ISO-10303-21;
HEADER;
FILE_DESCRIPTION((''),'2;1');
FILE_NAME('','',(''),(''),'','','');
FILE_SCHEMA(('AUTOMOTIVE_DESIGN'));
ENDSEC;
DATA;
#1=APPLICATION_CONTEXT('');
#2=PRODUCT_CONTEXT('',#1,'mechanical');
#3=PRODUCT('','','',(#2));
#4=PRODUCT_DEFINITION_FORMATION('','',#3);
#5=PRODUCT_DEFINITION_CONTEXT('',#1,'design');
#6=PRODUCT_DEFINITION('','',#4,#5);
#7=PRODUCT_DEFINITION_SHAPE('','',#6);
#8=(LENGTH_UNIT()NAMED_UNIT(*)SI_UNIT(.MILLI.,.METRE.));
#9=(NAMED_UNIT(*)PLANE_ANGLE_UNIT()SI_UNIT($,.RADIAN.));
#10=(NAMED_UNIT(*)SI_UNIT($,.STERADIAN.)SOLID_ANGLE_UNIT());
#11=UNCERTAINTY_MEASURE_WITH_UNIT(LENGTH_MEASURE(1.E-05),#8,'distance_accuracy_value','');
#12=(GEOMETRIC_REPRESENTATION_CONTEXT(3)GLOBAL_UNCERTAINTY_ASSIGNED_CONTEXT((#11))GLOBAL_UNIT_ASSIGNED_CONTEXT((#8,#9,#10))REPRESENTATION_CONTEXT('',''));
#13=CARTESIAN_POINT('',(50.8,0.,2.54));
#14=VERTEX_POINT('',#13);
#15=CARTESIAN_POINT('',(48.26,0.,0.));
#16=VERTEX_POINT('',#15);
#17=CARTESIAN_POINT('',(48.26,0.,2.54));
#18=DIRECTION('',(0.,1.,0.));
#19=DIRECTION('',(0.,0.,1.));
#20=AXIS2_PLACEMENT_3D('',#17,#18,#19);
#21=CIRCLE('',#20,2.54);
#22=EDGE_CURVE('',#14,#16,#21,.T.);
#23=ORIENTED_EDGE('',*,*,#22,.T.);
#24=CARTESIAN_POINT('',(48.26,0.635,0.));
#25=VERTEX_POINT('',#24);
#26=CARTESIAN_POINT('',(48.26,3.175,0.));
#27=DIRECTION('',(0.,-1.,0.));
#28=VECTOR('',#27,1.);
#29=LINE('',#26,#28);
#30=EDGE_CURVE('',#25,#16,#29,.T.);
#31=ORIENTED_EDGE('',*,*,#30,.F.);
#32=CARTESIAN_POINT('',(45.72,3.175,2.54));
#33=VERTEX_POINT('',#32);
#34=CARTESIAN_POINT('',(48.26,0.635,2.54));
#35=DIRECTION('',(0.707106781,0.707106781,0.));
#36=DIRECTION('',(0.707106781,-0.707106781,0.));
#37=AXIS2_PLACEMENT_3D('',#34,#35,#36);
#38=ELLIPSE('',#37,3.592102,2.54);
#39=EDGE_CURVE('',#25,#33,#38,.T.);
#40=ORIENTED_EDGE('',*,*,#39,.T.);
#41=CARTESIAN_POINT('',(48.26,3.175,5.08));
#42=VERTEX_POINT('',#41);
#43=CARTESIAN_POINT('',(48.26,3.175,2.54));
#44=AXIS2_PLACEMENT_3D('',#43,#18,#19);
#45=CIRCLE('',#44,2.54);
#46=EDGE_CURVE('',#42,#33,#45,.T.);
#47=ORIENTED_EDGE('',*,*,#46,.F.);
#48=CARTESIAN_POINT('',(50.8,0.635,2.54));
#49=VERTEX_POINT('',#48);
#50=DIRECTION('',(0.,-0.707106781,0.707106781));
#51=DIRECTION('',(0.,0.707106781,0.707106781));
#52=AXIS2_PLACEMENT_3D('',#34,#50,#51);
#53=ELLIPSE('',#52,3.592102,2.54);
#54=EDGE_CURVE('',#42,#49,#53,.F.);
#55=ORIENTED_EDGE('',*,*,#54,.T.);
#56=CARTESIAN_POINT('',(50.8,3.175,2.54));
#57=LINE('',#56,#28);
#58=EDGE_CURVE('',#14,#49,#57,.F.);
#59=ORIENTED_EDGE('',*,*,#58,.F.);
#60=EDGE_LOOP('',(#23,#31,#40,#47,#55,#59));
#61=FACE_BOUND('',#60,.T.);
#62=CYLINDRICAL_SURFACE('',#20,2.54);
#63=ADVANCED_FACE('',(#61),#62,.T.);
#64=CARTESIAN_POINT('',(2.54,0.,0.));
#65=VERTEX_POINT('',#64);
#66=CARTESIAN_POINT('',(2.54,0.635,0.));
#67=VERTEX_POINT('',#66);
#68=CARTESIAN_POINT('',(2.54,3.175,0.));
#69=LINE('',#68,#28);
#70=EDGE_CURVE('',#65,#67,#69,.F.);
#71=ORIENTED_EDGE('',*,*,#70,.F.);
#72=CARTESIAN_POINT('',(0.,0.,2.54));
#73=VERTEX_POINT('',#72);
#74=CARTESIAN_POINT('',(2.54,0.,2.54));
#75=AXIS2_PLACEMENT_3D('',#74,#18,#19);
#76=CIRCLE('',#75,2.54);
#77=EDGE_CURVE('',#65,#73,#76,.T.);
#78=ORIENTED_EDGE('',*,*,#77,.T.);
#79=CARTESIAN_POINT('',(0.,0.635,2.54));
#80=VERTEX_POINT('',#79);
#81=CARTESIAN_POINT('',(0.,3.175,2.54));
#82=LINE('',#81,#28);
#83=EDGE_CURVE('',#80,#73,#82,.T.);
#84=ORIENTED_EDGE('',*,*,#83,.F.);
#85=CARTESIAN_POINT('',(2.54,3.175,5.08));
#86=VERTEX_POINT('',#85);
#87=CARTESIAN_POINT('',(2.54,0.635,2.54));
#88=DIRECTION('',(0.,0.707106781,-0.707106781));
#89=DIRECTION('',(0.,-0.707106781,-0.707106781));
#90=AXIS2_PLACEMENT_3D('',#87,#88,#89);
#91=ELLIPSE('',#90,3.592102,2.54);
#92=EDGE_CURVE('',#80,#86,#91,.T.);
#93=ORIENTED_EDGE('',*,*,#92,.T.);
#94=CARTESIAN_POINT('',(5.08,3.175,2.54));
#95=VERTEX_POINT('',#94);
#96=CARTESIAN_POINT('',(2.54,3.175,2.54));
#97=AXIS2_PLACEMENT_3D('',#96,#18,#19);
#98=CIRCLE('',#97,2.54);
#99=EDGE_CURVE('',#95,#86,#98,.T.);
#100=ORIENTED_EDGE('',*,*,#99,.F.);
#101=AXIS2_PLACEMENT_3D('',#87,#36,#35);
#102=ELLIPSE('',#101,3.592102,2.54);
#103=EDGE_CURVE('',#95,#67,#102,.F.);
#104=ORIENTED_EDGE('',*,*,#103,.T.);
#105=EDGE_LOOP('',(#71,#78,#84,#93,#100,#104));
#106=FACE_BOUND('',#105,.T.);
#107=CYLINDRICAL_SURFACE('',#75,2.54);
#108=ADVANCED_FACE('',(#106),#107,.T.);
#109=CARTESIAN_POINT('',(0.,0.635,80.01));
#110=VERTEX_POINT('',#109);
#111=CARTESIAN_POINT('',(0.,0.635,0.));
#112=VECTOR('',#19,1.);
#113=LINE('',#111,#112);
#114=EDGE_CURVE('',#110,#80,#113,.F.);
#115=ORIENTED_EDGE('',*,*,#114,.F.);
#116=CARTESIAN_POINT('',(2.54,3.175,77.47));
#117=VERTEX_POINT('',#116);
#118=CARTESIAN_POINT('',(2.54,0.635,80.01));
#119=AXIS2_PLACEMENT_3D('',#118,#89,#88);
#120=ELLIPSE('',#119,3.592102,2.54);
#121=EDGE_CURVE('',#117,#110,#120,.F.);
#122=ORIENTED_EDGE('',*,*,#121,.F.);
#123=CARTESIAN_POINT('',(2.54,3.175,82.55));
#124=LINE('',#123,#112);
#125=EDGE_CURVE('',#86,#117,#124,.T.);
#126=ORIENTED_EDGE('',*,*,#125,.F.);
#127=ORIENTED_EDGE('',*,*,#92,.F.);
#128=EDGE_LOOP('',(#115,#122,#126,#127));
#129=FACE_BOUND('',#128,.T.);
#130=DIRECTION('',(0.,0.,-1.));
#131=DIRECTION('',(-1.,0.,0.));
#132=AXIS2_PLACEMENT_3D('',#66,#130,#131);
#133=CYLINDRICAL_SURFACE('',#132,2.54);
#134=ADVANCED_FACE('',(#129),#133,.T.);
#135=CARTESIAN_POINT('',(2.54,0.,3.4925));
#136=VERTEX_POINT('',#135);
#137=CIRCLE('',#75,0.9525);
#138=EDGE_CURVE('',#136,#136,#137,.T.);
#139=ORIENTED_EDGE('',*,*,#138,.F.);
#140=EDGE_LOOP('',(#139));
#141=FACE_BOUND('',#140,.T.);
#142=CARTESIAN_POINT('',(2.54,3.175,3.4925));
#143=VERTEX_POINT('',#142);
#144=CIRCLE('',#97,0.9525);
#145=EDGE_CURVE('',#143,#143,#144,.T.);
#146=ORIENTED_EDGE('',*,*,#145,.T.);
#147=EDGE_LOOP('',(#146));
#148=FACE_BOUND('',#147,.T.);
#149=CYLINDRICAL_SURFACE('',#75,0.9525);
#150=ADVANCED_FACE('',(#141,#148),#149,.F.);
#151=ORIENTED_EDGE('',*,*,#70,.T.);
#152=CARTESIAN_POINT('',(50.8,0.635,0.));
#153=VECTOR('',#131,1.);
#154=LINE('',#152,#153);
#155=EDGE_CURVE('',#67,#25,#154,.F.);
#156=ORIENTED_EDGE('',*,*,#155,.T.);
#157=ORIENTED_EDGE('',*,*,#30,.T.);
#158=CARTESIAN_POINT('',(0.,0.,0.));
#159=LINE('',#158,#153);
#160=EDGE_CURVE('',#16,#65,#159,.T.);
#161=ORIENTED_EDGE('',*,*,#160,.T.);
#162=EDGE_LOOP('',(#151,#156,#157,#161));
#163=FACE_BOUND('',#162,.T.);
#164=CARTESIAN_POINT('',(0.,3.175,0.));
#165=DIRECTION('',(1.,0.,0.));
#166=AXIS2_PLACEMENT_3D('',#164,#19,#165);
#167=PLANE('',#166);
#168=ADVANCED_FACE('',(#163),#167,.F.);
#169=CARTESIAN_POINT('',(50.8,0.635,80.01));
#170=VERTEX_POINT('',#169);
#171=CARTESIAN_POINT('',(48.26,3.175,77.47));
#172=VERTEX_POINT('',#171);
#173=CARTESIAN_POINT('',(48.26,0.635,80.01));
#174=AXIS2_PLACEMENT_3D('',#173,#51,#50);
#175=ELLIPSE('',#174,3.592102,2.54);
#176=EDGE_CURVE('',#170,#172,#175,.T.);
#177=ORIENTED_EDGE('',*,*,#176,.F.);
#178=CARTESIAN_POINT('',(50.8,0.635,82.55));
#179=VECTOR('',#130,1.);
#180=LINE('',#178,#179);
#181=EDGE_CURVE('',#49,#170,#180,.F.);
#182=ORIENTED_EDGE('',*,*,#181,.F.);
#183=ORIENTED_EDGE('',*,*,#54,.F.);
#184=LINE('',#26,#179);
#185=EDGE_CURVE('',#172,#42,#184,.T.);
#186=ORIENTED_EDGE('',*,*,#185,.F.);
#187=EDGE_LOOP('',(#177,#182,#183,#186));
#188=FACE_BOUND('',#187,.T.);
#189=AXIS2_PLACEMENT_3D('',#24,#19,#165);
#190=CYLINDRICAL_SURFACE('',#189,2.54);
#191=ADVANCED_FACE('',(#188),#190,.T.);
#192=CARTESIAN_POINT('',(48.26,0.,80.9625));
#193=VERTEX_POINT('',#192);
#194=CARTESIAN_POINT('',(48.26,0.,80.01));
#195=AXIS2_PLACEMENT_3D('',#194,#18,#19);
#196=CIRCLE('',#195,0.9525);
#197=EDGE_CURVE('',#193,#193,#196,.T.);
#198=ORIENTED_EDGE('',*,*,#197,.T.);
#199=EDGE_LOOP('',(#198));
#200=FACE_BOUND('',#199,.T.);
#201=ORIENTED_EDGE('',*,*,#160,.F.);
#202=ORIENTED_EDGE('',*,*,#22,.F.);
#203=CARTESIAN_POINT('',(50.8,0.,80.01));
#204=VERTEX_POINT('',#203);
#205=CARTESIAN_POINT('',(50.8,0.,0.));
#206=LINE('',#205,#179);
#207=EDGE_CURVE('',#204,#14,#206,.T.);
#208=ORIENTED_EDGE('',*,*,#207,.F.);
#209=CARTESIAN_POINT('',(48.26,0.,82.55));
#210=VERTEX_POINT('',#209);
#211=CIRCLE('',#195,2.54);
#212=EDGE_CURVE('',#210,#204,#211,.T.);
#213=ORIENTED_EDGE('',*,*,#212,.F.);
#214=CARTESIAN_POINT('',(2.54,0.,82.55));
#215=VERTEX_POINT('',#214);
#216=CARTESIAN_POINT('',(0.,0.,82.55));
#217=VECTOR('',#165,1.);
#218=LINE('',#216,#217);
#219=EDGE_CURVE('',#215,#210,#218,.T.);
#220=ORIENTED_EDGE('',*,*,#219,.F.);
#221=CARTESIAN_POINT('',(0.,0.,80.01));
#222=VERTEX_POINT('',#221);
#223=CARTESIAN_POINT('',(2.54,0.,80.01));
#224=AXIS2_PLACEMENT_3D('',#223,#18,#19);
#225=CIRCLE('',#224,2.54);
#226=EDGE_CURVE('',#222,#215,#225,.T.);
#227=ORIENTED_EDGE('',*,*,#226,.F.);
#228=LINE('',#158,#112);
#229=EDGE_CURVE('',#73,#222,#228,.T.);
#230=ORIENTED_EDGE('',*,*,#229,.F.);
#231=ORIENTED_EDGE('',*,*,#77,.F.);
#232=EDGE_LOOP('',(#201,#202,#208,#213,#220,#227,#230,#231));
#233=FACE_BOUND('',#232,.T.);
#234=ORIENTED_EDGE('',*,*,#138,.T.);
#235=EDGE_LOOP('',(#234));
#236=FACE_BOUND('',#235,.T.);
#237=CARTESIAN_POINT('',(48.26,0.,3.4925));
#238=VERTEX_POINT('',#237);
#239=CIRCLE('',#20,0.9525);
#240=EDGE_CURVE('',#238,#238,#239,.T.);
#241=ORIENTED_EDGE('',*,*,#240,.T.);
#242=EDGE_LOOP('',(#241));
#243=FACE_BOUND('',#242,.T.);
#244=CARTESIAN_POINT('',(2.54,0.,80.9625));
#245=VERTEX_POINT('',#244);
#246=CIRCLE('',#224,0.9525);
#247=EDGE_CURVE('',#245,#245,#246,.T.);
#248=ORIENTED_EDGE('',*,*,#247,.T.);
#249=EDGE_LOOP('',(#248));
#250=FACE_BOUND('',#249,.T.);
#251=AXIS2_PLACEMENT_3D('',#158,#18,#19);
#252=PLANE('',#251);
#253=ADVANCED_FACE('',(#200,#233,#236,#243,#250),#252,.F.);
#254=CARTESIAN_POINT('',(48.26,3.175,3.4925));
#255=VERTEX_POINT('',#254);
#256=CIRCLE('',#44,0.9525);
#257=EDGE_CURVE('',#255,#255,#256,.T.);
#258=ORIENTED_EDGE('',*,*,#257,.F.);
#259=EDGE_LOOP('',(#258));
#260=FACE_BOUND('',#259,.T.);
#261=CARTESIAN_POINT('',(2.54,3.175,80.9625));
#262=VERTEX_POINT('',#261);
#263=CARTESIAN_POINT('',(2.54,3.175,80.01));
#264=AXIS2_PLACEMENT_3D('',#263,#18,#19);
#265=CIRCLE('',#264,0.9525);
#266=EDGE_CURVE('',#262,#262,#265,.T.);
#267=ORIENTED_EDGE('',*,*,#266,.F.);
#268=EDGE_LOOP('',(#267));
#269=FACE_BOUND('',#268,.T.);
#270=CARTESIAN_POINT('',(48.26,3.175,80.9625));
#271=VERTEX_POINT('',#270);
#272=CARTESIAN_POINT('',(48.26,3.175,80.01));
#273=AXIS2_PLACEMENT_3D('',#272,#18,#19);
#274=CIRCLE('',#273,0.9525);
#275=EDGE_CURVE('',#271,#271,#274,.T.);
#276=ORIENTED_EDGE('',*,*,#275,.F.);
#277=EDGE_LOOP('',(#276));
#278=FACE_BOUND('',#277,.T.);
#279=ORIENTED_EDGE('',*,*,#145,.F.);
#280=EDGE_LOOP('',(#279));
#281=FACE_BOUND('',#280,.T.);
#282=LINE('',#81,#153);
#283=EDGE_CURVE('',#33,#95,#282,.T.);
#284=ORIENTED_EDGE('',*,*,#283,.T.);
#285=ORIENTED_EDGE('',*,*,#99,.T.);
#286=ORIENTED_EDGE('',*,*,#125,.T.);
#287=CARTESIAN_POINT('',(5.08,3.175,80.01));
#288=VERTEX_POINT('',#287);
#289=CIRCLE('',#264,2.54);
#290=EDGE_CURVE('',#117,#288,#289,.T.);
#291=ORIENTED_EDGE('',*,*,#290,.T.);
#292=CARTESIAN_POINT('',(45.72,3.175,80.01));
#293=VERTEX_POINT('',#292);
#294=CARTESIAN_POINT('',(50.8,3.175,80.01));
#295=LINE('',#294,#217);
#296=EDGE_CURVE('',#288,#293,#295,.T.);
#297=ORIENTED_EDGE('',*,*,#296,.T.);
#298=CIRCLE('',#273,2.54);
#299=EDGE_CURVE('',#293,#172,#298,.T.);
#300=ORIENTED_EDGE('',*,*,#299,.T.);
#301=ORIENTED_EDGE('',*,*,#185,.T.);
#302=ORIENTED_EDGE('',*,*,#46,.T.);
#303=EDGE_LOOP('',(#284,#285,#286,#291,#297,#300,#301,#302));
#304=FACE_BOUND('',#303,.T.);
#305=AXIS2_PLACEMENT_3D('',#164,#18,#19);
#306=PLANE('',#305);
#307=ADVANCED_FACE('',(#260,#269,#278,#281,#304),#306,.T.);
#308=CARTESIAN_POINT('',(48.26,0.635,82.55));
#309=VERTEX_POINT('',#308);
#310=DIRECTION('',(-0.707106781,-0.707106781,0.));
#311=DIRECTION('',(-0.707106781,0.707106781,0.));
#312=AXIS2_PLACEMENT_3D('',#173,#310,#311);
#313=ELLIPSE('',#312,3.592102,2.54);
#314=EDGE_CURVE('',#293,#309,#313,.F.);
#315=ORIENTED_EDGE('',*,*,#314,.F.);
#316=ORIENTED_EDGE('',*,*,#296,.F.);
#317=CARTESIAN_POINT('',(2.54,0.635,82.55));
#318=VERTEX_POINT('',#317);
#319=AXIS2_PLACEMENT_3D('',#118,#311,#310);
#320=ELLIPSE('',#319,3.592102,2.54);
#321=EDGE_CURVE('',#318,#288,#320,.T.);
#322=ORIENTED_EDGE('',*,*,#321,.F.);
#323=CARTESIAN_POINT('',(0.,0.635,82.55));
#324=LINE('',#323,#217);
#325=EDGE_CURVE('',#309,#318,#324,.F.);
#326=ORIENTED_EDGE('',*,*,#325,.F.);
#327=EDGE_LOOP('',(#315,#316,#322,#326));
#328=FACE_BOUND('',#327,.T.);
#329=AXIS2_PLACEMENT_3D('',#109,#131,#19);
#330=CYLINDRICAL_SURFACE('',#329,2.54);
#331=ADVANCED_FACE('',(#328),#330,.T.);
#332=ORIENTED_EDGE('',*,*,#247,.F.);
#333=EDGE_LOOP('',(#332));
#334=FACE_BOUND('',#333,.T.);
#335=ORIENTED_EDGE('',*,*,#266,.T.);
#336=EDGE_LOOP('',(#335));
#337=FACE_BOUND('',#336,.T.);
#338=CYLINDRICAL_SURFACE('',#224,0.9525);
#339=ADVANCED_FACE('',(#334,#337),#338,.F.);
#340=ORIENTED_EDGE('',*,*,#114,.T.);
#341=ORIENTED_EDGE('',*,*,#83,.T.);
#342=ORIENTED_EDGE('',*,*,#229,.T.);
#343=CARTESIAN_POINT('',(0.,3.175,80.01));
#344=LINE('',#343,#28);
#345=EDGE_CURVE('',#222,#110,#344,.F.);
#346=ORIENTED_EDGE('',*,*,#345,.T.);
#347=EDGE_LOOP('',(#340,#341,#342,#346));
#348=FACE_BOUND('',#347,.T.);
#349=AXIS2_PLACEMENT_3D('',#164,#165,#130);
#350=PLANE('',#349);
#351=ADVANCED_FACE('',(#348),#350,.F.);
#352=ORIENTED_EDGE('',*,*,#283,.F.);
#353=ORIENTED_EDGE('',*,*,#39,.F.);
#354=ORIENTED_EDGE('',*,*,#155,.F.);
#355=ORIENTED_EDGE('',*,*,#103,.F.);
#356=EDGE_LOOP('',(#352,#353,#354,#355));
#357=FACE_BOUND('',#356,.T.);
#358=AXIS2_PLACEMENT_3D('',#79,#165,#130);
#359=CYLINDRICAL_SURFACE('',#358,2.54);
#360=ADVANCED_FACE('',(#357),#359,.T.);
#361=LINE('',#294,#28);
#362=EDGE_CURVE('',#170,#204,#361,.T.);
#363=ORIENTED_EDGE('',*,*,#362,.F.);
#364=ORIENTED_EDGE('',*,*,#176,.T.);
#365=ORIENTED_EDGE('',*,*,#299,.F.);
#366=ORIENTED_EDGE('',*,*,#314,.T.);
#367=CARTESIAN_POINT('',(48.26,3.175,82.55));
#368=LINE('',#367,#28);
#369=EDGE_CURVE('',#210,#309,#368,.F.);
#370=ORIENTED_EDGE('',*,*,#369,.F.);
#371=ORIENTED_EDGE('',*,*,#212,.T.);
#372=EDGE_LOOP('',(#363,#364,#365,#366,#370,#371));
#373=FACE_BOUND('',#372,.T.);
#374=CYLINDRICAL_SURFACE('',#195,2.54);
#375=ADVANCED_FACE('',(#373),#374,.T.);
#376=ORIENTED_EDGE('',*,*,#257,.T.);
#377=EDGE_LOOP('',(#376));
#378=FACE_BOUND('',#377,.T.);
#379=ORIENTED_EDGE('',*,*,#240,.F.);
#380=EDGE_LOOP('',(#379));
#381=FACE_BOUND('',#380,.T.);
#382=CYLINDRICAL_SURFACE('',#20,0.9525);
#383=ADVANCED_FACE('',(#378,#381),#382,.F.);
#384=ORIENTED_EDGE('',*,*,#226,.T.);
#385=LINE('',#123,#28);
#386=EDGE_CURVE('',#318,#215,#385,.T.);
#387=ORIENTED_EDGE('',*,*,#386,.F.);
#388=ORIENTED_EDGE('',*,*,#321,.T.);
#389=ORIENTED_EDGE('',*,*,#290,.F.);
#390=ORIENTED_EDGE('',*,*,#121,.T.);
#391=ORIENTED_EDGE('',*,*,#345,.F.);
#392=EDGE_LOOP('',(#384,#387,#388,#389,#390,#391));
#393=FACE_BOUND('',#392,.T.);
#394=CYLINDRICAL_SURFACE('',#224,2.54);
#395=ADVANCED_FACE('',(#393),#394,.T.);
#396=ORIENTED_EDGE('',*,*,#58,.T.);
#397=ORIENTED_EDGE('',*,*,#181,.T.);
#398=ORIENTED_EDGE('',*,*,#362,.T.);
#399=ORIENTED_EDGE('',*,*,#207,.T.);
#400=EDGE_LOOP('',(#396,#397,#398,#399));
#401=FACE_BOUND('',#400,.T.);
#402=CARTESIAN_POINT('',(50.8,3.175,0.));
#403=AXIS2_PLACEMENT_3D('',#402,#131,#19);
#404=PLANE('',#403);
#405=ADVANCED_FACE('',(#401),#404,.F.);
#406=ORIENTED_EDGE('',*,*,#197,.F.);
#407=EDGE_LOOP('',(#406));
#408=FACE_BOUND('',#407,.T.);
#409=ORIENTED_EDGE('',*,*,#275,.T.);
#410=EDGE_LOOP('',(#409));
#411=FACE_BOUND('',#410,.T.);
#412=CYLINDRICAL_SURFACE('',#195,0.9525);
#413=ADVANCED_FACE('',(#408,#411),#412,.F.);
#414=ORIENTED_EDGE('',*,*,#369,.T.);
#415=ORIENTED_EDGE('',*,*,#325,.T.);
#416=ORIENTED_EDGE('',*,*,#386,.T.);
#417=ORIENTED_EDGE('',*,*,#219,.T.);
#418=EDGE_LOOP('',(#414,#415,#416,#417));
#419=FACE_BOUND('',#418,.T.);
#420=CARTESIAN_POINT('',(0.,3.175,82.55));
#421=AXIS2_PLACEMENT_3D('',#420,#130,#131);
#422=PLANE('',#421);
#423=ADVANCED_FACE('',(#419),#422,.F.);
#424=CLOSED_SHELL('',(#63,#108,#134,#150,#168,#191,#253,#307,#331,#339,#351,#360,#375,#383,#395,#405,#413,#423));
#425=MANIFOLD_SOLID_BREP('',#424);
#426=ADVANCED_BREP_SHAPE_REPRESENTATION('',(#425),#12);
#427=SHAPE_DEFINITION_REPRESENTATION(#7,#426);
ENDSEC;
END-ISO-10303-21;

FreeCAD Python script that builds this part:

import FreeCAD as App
import Part
import Sketcher

V = App.Vector
Q = App.Units.Quantity


def edges_at(feature, points):
    """Names of the edges that pass closest to the given points."""
    edges = feature.Shape.Edges
    near = lambda p: min(range(len(edges)), key=lambda i: edges[i].distToShape(Part.Vertex(*p))[0])
    return sorted({f"Edge{near(p) + 1}" for p in points})


def add_polygon(sketch, points):
    """Adds a closed chain of lines whose ends are joined by coincident constraints."""
    first, n = sketch.GeometryCount, len(points)
    for a, b in zip(points, points[1:] + points[:1]):
        sketch.addGeometry(Part.LineSegment(App.Vector(*a, 0), App.Vector(*b, 0)), False)
    for i in range(n):
        sketch.addConstraint(Sketcher.Constraint("Coincident", first + i, 2, first + (i + 1) % n, 1))

doc = App.newDocument("Part")
params = doc.addObject("Spreadsheet::Sheet", "Params")
for row, (alias, value) in enumerate([
    ("sketch1_width", "2 in"),
    ("sketch1_height", "3.25 in"),
    ("pad1_length", "0.125 in"),
    ("fillet_radius", "0.1 in"),
    ("sketch2_diameter", "0.2 in"),
    ("sketch3_diameter", "0.2 in"),
    ("pad2_length", "0.125 in"),
    ("sketch4_diameter", "0.075 in"),
], start=1):
    params.set(f"A{row}", alias)
    params.set(f"B{row}", "=" + value)
    params.setAlias(f"B{row}", alias)

body = doc.addObject("PartDesign::Body", "Body")

sketch1 = body.newObject("Sketcher::SketchObject", "Sketch")
sketch1.AttachmentSupport = (doc.getObject("XZ_Plane"), [""])
sketch1.MapMode = "FlatFace"
add_polygon(sketch1, [(0, 0), (0, 83), (51, 83), (51, 0)])
sketch1.addConstraint([
    Sketcher.Constraint("Vertical", 0),
    Sketcher.Constraint("Horizontal", 1),
    Sketcher.Constraint("Vertical", 2),
    Sketcher.Constraint("Horizontal", 3),
    Sketcher.Constraint("Coincident", 3, 2, -1, 1),
    Sketcher.Constraint("DistanceX", 1, 1, 1, 2, Q("2 in")),
    Sketcher.Constraint("DistanceY", 0, 1, 0, 2, Q("3.25 in")),
])
sketch1.setExpression("Constraints[9]", "Params.sketch1_width")
sketch1.setExpression("Constraints[10]", "Params.sketch1_height")
pad1 = body.newObject("PartDesign::Pad", "Pad")
pad1.Profile = sketch1
pad1.setExpression("Length", "Params.pad1_length")
pad1.Reversed = True
doc.recompute()

fillet = body.newObject("PartDesign::Fillet", "Fillet")
fillet.Base = (pad1, edges_at(pad1, [
    (50.8, 3.175, 41.275),
    (25.4, 3.175, 0),
    (0, 3.175, 41.275),
    (25.4, 3.175, 82.55),
    (0, 1.587, 0),
    (50.8, 1.587, 0),
    (50.8, 1.587, 82.55),
    (0, 1.587, 82.55),
]))
fillet.setExpression("Radius", "Params.fillet_radius")

sketch2 = body.newObject("Sketcher::SketchObject", "Sketch001")
sketch2.AttachmentSupport = (doc.getObject("XZ_Plane"), [""])
sketch2.MapMode = "FlatFace"
sketch2.AttachmentOffset = App.Placement(V(0, 0, -0.125 * 25.4), App.Rotation())
sketch2.addGeometry([
    Part.Circle(V(48.3, 80, 0), V(0, 0, 1), 2.5),
    Part.Circle(V(2.5, 80, 0), V(0, 0, 1), 2.5),
    Part.Circle(V(2.5, 2.5, 0), V(0, 0, 1), 2.5),
    Part.Circle(V(48.3, 2.5, 0), V(0, 0, 1), 2.5),
], False)
sketch2.addConstraint([
    Sketcher.Constraint("Equal", 0, 1),
    Sketcher.Constraint("Equal", 1, 2),
    Sketcher.Constraint("Equal", 2, 3),
    Sketcher.Constraint("Horizontal", 0, 3, 1, 3),
    Sketcher.Constraint("Horizontal", 2, 3, 3, 3),
    Sketcher.Constraint("Vertical", 1, 3, 2, 3),
    Sketcher.Constraint("Vertical", 0, 3, 3, 3),
    Sketcher.Constraint("Diameter", 0, Q("0.2 in")),
    Sketcher.Constraint("DistanceX", -1, 1, 0, 3, Q("1.9 in")),
    Sketcher.Constraint("DistanceX", -1, 1, 1, 3, Q("0.1 in")),
    Sketcher.Constraint("DistanceY", -1, 1, 2, 3, Q("0.1 in")),
    Sketcher.Constraint("DistanceY", -1, 1, 0, 3, Q("3.15 in")),
])
sketch2.setExpression("Constraints[7]", "Params.sketch2_diameter")
pocket1 = body.newObject("PartDesign::Pocket", "Pocket")
pocket1.Profile = sketch2
pocket1.Type = "ThroughAll"
pocket1.Reversed = True

sketch3 = body.newObject("Sketcher::SketchObject", "Sketch002")
sketch3.AttachmentSupport = (doc.getObject("XZ_Plane"), [""])
sketch3.MapMode = "FlatFace"
sketch3.AttachmentOffset = App.Placement(V(0, 0, -0.125 * 25.4), App.Rotation())
sketch3.addGeometry([
    Part.Circle(V(48.3, 80, 0), V(0, 0, 1), 2.5),
    Part.Circle(V(2.5, 80, 0), V(0, 0, 1), 2.5),
    Part.Circle(V(2.5, 2.5, 0), V(0, 0, 1), 2.5),
    Part.Circle(V(48.3, 2.5, 0), V(0, 0, 1), 2.5),
], False)
sketch3.addConstraint([
    Sketcher.Constraint("Equal", 0, 1),
    Sketcher.Constraint("Equal", 1, 2),
    Sketcher.Constraint("Equal", 2, 3),
    Sketcher.Constraint("Horizontal", 0, 3, 1, 3),
    Sketcher.Constraint("Horizontal", 2, 3, 3, 3),
    Sketcher.Constraint("Vertical", 1, 3, 2, 3),
    Sketcher.Constraint("Vertical", 0, 3, 3, 3),
    Sketcher.Constraint("Diameter", 0, Q("0.2 in")),
    Sketcher.Constraint("DistanceX", -1, 1, 0, 3, Q("1.9 in")),
    Sketcher.Constraint("DistanceX", -1, 1, 1, 3, Q("0.1 in")),
    Sketcher.Constraint("DistanceY", -1, 1, 2, 3, Q("0.1 in")),
    Sketcher.Constraint("DistanceY", -1, 1, 0, 3, Q("3.15 in")),
])
sketch3.setExpression("Constraints[7]", "Params.sketch3_diameter")
pad2 = body.newObject("PartDesign::Pad", "Pad001")
pad2.Profile = sketch3
pad2.setExpression("Length", "Params.pad2_length")

sketch4 = body.newObject("Sketcher::SketchObject", "Sketch003")
sketch4.AttachmentSupport = (doc.getObject("XZ_Plane"), [""])
sketch4.MapMode = "FlatFace"
sketch4.AttachmentOffset = App.Placement(V(0, 0, -0.125 * 25.4), App.Rotation())
sketch4.addGeometry([
    Part.Circle(V(2.5, 2.5, 0), V(0, 0, 1), 1),
    Part.Circle(V(48.3, 2.5, 0), V(0, 0, 1), 1),
    Part.Circle(V(2.5, 80, 0), V(0, 0, 1), 1),
    Part.Circle(V(48.3, 80, 0), V(0, 0, 1), 1),
], False)
sketch4.addConstraint([
    Sketcher.Constraint("Equal", 0, 1),
    Sketcher.Constraint("Equal", 1, 2),
    Sketcher.Constraint("Equal", 2, 3),
    Sketcher.Constraint("Horizontal", 0, 3, 1, 3),
    Sketcher.Constraint("Horizontal", 2, 3, 3, 3),
    Sketcher.Constraint("Vertical", 0, 3, 2, 3),
    Sketcher.Constraint("Vertical", 1, 3, 3, 3),
    Sketcher.Constraint("Diameter", 0, Q("0.075 in")),
    Sketcher.Constraint("DistanceX", -1, 1, 0, 3, Q("0.1 in")),
    Sketcher.Constraint("DistanceY", -1, 1, 0, 3, Q("0.1 in")),
    Sketcher.Constraint("DistanceX", -1, 1, 1, 3, Q("1.9 in")),
    Sketcher.Constraint("DistanceY", -1, 1, 2, 3, Q("3.15 in")),
])
sketch4.setExpression("Constraints[7]", "Params.sketch4_diameter")
pocket2 = body.newObject("PartDesign::Pocket", "Pocket001")
pocket2.Profile = sketch4
pocket2.Type = "ThroughAll"
pocket2.Reversed = True

doc.recompute()
